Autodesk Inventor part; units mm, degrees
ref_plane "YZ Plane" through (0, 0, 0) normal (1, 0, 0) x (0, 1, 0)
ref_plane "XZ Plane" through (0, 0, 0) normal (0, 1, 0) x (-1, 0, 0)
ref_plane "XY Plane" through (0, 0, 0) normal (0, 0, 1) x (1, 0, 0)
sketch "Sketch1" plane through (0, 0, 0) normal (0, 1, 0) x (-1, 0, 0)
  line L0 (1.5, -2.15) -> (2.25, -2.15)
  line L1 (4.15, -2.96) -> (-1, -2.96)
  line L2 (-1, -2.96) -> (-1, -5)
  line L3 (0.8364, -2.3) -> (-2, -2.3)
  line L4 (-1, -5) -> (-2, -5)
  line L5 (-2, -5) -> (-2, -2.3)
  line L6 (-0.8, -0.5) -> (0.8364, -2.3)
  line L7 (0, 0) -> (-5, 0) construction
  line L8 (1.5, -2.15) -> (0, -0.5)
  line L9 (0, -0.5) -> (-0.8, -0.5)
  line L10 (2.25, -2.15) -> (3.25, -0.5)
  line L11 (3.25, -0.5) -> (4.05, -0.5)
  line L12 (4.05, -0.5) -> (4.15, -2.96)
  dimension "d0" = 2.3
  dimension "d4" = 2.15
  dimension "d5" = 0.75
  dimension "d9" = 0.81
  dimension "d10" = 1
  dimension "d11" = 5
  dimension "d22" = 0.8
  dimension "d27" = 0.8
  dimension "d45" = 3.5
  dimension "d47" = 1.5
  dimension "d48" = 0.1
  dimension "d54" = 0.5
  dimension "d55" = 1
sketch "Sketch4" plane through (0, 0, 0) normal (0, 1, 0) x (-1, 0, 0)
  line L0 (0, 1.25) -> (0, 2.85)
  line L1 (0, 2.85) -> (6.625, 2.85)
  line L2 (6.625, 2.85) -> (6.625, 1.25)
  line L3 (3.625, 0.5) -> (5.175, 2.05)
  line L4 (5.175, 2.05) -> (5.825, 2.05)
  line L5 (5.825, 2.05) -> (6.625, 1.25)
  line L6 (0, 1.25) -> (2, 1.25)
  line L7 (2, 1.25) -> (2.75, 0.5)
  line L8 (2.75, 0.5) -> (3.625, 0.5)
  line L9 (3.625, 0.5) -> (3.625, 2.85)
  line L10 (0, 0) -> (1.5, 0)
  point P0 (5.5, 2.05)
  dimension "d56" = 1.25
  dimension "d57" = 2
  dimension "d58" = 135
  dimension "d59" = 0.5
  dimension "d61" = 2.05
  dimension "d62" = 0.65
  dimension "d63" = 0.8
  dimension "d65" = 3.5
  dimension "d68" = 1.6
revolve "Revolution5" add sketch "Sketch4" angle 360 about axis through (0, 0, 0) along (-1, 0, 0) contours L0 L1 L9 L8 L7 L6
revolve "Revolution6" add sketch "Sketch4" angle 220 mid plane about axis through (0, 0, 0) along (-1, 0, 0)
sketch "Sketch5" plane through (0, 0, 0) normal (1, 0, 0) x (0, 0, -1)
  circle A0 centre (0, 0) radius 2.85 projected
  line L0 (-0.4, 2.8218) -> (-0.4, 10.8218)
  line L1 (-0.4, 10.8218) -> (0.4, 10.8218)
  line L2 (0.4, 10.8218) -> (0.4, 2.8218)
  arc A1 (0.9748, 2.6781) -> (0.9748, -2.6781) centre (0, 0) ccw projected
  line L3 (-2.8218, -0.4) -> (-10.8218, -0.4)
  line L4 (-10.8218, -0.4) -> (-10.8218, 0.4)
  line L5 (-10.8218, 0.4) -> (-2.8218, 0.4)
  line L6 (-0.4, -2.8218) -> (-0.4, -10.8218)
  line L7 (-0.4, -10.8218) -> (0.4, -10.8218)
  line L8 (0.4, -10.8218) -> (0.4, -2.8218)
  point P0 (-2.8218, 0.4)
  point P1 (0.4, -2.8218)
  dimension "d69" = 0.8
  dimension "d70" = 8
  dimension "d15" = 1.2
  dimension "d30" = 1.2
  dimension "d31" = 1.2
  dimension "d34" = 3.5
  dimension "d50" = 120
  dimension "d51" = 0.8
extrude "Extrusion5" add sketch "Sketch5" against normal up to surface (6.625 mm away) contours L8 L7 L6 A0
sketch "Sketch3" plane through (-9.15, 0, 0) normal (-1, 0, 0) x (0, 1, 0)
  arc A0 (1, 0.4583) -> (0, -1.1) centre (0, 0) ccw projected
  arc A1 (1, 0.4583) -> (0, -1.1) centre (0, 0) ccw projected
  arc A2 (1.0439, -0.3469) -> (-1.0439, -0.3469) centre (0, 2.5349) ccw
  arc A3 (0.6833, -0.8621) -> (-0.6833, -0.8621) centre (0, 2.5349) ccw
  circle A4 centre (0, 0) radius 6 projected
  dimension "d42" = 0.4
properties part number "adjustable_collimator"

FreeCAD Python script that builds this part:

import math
import FreeCAD as App
import Part
import Sketcher
from FreeCAD import Vector
Q = App.Units.Quantity

doc = App.newDocument("Part")
body = doc.addObject("PartDesign::Body", "Body")

sketch1 = body.newObject("Sketcher::SketchObject", "Sketch")
sketch1.AttachmentSupport = (doc.getObject("XZ_Plane"), [""])
sketch1.MapMode = "FlatFace"
sketch1.addGeometry(Part.LineSegment(Vector(0, 2.9, 0), Vector(0, 1.2, 0)), False)
sketch1.addGeometry(Part.LineSegment(Vector(0, 1.2, 0), Vector(-2, 1.2, 0)), False)
sketch1.addGeometry(Part.LineSegment(Vector(-2, 1.2, 0), Vector(-2.8, 0.5, 0)), False)
sketch1.addGeometry(Part.LineSegment(Vector(-2.8, 0.5, 0), Vector(-3.6, 0.5, 0)), False)
sketch1.addGeometry(Part.LineSegment(Vector(-3.6, 0.5, 0), Vector(-3.6, 2.9, 0)), False)
sketch1.addGeometry(Part.LineSegment(Vector(-3.6, 2.9, 0), Vector(0, 2.9, 0)), False)
sketch1.addConstraint(Sketcher.Constraint("Coincident", 0, 2, 1, 1))
sketch1.addConstraint(Sketcher.Constraint("Coincident", 1, 2, 2, 1))
sketch1.addConstraint(Sketcher.Constraint("Coincident", 2, 2, 3, 1))
sketch1.addConstraint(Sketcher.Constraint("Coincident", 3, 2, 4, 1))
sketch1.addConstraint(Sketcher.Constraint("Coincident", 4, 2, 5, 1))
sketch1.addConstraint(Sketcher.Constraint("Coincident", 5, 2, 0, 1))
sketch1.addConstraint(Sketcher.Constraint("Vertical", 0))
sketch1.addConstraint(Sketcher.Constraint("Horizontal", 1))
sketch1.addConstraint(Sketcher.Constraint("Horizontal", 3))
sketch1.addConstraint(Sketcher.Constraint("Vertical", 4))
sketch1.addConstraint(Sketcher.Constraint("Horizontal", 5))
sketch1.addConstraint(Sketcher.Constraint("PointOnObject", 0, 2, -2))
sketch1.addConstraint(Sketcher.Constraint("DistanceX", 1, 2, 1, 1, Q("2 mm")))
sketch1.addConstraint(Sketcher.Constraint("Angle", 2, Q("-135 deg")))
sketch1.addConstraint(Sketcher.Constraint("DistanceY", 0, 2, 0, 1, Q("1.6 mm")))
sketch1.addConstraint(Sketcher.Constraint("DistanceY", -1, 1, 2, 2, Q("0.5 mm")))
sketch1.addConstraint(Sketcher.Constraint("DistanceY", -1, 1, 0, 2, Q("1.25 mm")))
sketch1.addConstraint(Sketcher.Constraint("DistanceX", 3, 2, 3, 1, Q("0.875 mm")))
revolution = body.newObject("PartDesign::Revolution", "Revolution")
revolution.Profile = sketch1
revolution.ReferenceAxis = (sketch1, ["H_Axis"])
revolution.Angle = 360

sketch2 = body.newObject("Sketcher::SketchObject", "Sketch001")
sketch2.AttachmentSupport = (doc.getObject("XZ_Plane"), [""])
sketch2.MapMode = "FlatFace"
sketch2.addGeometry(Part.LineSegment(Vector(0, 2.9, 0), Vector(0, 1.2, 0)), False)
sketch2.addGeometry(Part.LineSegment(Vector(0, 1.2, 0), Vector(-2, 1.2, 0)), False)
sketch2.addGeometry(Part.LineSegment(Vector(-2, 1.2, 0), Vector(-2.8, 0.5, 0)), False)
sketch2.addGeometry(Part.LineSegment(Vector(-2.8, 0.5, 0), Vector(-3.6, 0.5, 0)), False)
sketch2.addGeometry(Part.LineSegment(Vector(-3.6, 0.5, 0), Vector(-5.2, 2, 0)), False)
sketch2.addGeometry(Part.LineSegment(Vector(-5.2, 2, 0), Vector(-5.8, 2, 0)), False)
sketch2.addGeometry(Part.LineSegment(Vector(-5.8, 2, 0), Vector(-6.6, 1.2, 0)), False)
sketch2.addGeometry(Part.LineSegment(Vector(-6.6, 1.2, 0), Vector(-6.6, 2.9, 0)), False)
sketch2.addGeometry(Part.LineSegment(Vector(-6.6, 2.9, 0), Vector(0, 2.9, 0)), False)
sketch2.addConstraint(Sketcher.Constraint("Coincident", 0, 2, 1, 1))
sketch2.addConstraint(Sketcher.Constraint("Coincident", 1, 2, 2, 1))
sketch2.addConstraint(Sketcher.Constraint("Coincident", 2, 2, 3, 1))
sketch2.addConstraint(Sketcher.Constraint("Coincident", 3, 2, 4, 1))
sketch2.addConstraint(Sketcher.Constraint("Coincident", 4, 2, 5, 1))
sketch2.addConstraint(Sketcher.Constraint("Coincident", 5, 2, 6, 1))
sketch2.addConstraint(Sketcher.Constraint("Coincident", 6, 2, 7, 1))
sketch2.addConstraint(Sketcher.Constraint("Coincident", 7, 2, 8, 1))
sketch2.addConstraint(Sketcher.Constraint("Coincident", 8, 2, 0, 1))
sketch2.addConstraint(Sketcher.Constraint("Vertical", 0))
sketch2.addConstraint(Sketcher.Constraint("Horizontal", 1))
sketch2.addConstraint(Sketcher.Constraint("Horizontal", 3))
sketch2.addConstraint(Sketcher.Constraint("Horizontal", 5))
sketch2.addConstraint(Sketcher.Constraint("Vertical", 7))
sketch2.addConstraint(Sketcher.Constraint("Horizontal", 8))
sketch2.addConstraint(Sketcher.Constraint("PointOnObject", 0, 2, -2))
sketch2.addConstraint(Sketcher.Constraint("Perpendicular", 2, 4))
sketch2.addConstraint(Sketcher.Constraint("Perpendicular", 4, 6))
sketch2.addConstraint(Sketcher.Constraint("Horizontal", 1, 2, 6, 2))
sketch2.addConstraint(Sketcher.Constraint("DistanceX", 1, 2, 1, 1, Q("2 mm")))
sketch2.addConstraint(Sketcher.Constraint("Angle", 2, Q("-135 deg")))
sketch2.addConstraint(Sketcher.Constraint("DistanceY", 0, 2, 0, 1, Q("1.6 mm")))
sketch2.addConstraint(Sketcher.Constraint("DistanceX", 5, 2, 5, 1, Q("0.65 mm")))
sketch2.addConstraint(Sketcher.Constraint("DistanceY", -1, 1, 2, 2, Q("0.5 mm")))
sketch2.addConstraint(Sketcher.Constraint("DistanceY", 1, 2, 4, 2, Q("0.8 mm")))
sketch2.addConstraint(Sketcher.Constraint("DistanceY", -1, 1, 0, 2, Q("1.25 mm")))
sketch2.addConstraint(Sketcher.Constraint("DistanceX", 3, 2, 3, 1, Q("0.875 mm")))
revolution2 = body.newObject("PartDesign::Revolution", "Revolution001")
revolution2.Profile = sketch2
revolution2.ReferenceAxis = (sketch2, ["H_Axis"])
revolution2.Angle = 220
revolution2.Midplane = True

sketch3 = body.newObject("Sketcher::SketchObject", "Sketch002")
sketch3.AttachmentSupport = (doc.getObject("YZ_Plane"), [""])
sketch3.MapMode = "FlatFace"
sketch3.addGeometry(Part.LineSegment(Vector(-10.8, -0.4, 0), Vector(-2.8, -0.4, 0)), False)
sketch3.addGeometry(Part.ArcOfCircle(Part.Circle(Vector(0, 0, 0), Vector(0, 0, 1), 2.9), math.radians(171.93), math.radians(188.07)), False)
sketch3.addGeometry(Part.LineSegment(Vector(-2.8, 0.4, 0), Vector(-10.8, 0.4, 0)), False)
sketch3.addGeometry(Part.LineSegment(Vector(-10.8, 0.4, 0), Vector(-10.8, -0.4, 0)), False)
sketch3.addConstraint(Sketcher.Constraint("Coincident", 0, 2, 1, 2))
sketch3.addConstraint(Sketcher.Constraint("Coincident", 1, 1, 2, 1))
sketch3.addConstraint(Sketcher.Constraint("Coincident", 2, 2, 3, 1))
sketch3.addConstraint(Sketcher.Constraint("Coincident", 3, 2, 0, 1))
sketch3.addConstraint(Sketcher.Constraint("Horizontal", 0))
sketch3.addConstraint(Sketcher.Constraint("Horizontal", 2))
sketch3.addConstraint(Sketcher.Constraint("Vertical", 3))
sketch3.addConstraint(Sketcher.Constraint("Coincident", 1, 3, -1, 1))
sketch3.addConstraint(Sketcher.Constraint("Vertical", 0, 2, 1, 1))
sketch3.addConstraint(Sketcher.Constraint("DistanceX", 0, 1, 0, 2, Q("8 mm")))
sketch3.addConstraint(Sketcher.Constraint("DistanceY", 3, 2, 3, 1, Q("0.8 mm")))
sketch3.addConstraint(Sketcher.Constraint("Radius", 1, Q("2.85 mm")))
pad1 = body.newObject("PartDesign::Pad", "Pad")
pad1.Profile = sketch3
pad1.Length = 6.625
pad1.Reversed = True

doc.recompute()
